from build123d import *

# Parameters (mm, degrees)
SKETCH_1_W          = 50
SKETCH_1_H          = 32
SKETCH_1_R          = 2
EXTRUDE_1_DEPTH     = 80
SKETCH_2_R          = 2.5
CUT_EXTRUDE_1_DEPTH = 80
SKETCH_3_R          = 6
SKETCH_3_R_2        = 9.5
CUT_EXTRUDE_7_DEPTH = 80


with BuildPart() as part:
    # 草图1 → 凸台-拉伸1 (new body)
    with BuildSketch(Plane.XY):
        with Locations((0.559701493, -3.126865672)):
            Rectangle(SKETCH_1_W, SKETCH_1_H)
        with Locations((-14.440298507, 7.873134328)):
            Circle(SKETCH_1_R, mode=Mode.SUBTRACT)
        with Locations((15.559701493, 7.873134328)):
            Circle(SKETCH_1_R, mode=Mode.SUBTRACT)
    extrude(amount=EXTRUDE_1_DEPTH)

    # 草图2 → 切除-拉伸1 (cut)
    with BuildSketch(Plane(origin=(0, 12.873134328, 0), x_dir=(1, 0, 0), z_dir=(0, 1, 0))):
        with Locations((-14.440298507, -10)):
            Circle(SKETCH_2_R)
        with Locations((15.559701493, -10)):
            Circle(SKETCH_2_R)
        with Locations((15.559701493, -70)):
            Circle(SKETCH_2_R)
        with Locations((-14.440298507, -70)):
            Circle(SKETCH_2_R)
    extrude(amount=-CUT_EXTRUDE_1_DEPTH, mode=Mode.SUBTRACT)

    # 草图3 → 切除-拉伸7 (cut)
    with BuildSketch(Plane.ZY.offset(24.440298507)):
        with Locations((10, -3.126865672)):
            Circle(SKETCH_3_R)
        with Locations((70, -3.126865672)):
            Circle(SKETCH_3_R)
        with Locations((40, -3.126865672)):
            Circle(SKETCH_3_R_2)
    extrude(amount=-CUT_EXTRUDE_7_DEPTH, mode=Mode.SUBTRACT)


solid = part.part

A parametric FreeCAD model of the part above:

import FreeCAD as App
import Part
import Sketcher

doc = App.newDocument("Part")
body = doc.addObject("PartDesign::Body", "Body")

# Sketch on XY plane
sketch1 = body.newObject("Sketcher::SketchObject", "Sketch")
sketch1.AttachmentSupport = (doc.getObject("XY_Plane"), [""])
sketch1.MapMode = "FlatFace"
sketch1.addGeometry([
    Part.LineSegment(App.Vector(-24.4, 12.9, 0), App.Vector(-24.4, -19.1, 0)),  # 0
    Part.LineSegment(App.Vector(-24.4, -19.1, 0), App.Vector(25.6, -19.1, 0)),  # 1
    Part.LineSegment(App.Vector(25.6, -19.1, 0), App.Vector(25.6, 12.9, 0)),  # 2
    Part.LineSegment(App.Vector(25.6, 12.9, 0), App.Vector(-24.4, 12.9, 0)),  # 3
    Part.Circle(App.Vector(-14.4, 7.9, 0), App.Vector(0, 0, 1), 2),  # 4
    Part.Circle(App.Vector(15.6, 7.9, 0), App.Vector(0, 0, 1), 2),  # 5
], False)
sketch1.addConstraint([
    Sketcher.Constraint("Coincident", 0, 2, 1, 1),
    Sketcher.Constraint("Coincident", 1, 2, 2, 1),
    Sketcher.Constraint("Coincident", 2, 2, 3, 1),
    Sketcher.Constraint("Coincident", 3, 2, 0, 1),
    Sketcher.Constraint("Vertical", 0),
    Sketcher.Constraint("Horizontal", 1),
    Sketcher.Constraint("Vertical", 2),
    Sketcher.Constraint("Horizontal", 3),
    Sketcher.Constraint("Equal", 4, 5),
    Sketcher.Constraint("Horizontal", 4, 3, 5, 3),
    Sketcher.Constraint("Diameter", 4, 4.0),
    Sketcher.Constraint("DistanceX", 1, 1, 1, 2, 50.0),
    Sketcher.Constraint("DistanceY", 0, 2, 0, 1, 32.0),
    Sketcher.Constraint("DistanceX", 4, 3, 5, 3, 30.0),
    Sketcher.Constraint("DistanceX", 0, 2, 4, 3, 10.0),
    Sketcher.Constraint("DistanceY", 0, 2, 4, 3, 27.0),
    Sketcher.Constraint("DistanceX", 4, 3, -1, 1, 14.440299),
    Sketcher.Constraint("DistanceY", -1, 1, 4, 3, 7.873134),
])
pad1 = body.newObject("PartDesign::Pad", "Pad")
pad1.Profile = sketch1
pad1.Length = 80

# Sketch on XZ plane
sketch2 = body.newObject("Sketcher::SketchObject", "Sketch001")
sketch2.AttachmentSupport = (doc.getObject("XZ_Plane"), [""])
sketch2.MapMode = "FlatFace"
sketch2.AttachmentOffset = App.Placement(App.Vector(0, 0, -12.873134), App.Rotation())
sketch2.addGeometry([
    Part.Circle(App.Vector(-14.4, 10, 0), App.Vector(0, 0, 1), 2.5),
    Part.Circle(App.Vector(15.6, 10, 0), App.Vector(0, 0, 1), 2.5),
    Part.Circle(App.Vector(15.6, 70, 0), App.Vector(0, 0, 1), 2.5),
    Part.Circle(App.Vector(-14.4, 70, 0), App.Vector(0, 0, 1), 2.5),
], False)
sketch2.addConstraint([
    Sketcher.Constraint("Equal", 0, 1),
    Sketcher.Constraint("Equal", 1, 2),
    Sketcher.Constraint("Equal", 2, 3),
    Sketcher.Constraint("Horizontal", 0, 3, 1, 3),
    Sketcher.Constraint("Horizontal", 2, 3, 3, 3),
    Sketcher.Constraint("Vertical", 1, 3, 2, 3),
    Sketcher.Constraint("Vertical", 0, 3, 3, 3),
    Sketcher.Constraint("Diameter", 0, 5.0),
    Sketcher.Constraint("DistanceY", -1, 1, 0, 3, 10.0),
    Sketcher.Constraint("DistanceY", -1, 1, 2, 3, 70.0),
    Sketcher.Constraint("DistanceX", 0, 3, 1, 3, 30.0),
    Sketcher.Constraint("DistanceX", 0, 3, -1, 1, 14.440299),
])
pocket1 = body.newObject("PartDesign::Pocket", "Pocket")
pocket1.Profile = sketch2
pocket1.Length = 80
pocket1.Reversed = True

# Sketch on YZ plane
sketch3 = body.newObject("Sketcher::SketchObject", "Sketch002")
sketch3.AttachmentSupport = (doc.getObject("YZ_Plane"), [""])
sketch3.MapMode = "FlatFace"
sketch3.AttachmentOffset = App.Placement(App.Vector(0, 0, -24.440299), App.Rotation())
sketch3.addGeometry([
    Part.Circle(App.Vector(-3, 10, 0), App.Vector(0, 0, 1), 6),
    Part.Circle(App.Vector(-3, 70, 0), App.Vector(0, 0, 1), 6),
    Part.Circle(App.Vector(-3, 40, 0), App.Vector(0, 0, 1), 10),
], False)
sketch3.addConstraint([
    Sketcher.Constraint("Equal", 0, 1),
    Sketcher.Constraint("Vertical", 0, 3, 1, 3),
    Sketcher.Constraint("Vertical", 1, 3, 2, 3),
    Sketcher.Constraint("Diameter", 0, 12.0),
    Sketcher.Constraint("Diameter", 2, 19.0),
    Sketcher.Constraint("DistanceY", -1, 1, 0, 3, 10.0),
    Sketcher.Constraint("DistanceY", -1, 1, 1, 3, 70.0),
    Sketcher.Constraint("DistanceY", -1, 1, 2, 3, 40.0),
    Sketcher.Constraint("DistanceX", 0, 3, -1, 1, 3.126866),
])
pocket2 = body.newObject("PartDesign::Pocket", "Pocket001")
pocket2.Profile = sketch3
pocket2.Length = 80
pocket2.Reversed = True

doc.recompute()
